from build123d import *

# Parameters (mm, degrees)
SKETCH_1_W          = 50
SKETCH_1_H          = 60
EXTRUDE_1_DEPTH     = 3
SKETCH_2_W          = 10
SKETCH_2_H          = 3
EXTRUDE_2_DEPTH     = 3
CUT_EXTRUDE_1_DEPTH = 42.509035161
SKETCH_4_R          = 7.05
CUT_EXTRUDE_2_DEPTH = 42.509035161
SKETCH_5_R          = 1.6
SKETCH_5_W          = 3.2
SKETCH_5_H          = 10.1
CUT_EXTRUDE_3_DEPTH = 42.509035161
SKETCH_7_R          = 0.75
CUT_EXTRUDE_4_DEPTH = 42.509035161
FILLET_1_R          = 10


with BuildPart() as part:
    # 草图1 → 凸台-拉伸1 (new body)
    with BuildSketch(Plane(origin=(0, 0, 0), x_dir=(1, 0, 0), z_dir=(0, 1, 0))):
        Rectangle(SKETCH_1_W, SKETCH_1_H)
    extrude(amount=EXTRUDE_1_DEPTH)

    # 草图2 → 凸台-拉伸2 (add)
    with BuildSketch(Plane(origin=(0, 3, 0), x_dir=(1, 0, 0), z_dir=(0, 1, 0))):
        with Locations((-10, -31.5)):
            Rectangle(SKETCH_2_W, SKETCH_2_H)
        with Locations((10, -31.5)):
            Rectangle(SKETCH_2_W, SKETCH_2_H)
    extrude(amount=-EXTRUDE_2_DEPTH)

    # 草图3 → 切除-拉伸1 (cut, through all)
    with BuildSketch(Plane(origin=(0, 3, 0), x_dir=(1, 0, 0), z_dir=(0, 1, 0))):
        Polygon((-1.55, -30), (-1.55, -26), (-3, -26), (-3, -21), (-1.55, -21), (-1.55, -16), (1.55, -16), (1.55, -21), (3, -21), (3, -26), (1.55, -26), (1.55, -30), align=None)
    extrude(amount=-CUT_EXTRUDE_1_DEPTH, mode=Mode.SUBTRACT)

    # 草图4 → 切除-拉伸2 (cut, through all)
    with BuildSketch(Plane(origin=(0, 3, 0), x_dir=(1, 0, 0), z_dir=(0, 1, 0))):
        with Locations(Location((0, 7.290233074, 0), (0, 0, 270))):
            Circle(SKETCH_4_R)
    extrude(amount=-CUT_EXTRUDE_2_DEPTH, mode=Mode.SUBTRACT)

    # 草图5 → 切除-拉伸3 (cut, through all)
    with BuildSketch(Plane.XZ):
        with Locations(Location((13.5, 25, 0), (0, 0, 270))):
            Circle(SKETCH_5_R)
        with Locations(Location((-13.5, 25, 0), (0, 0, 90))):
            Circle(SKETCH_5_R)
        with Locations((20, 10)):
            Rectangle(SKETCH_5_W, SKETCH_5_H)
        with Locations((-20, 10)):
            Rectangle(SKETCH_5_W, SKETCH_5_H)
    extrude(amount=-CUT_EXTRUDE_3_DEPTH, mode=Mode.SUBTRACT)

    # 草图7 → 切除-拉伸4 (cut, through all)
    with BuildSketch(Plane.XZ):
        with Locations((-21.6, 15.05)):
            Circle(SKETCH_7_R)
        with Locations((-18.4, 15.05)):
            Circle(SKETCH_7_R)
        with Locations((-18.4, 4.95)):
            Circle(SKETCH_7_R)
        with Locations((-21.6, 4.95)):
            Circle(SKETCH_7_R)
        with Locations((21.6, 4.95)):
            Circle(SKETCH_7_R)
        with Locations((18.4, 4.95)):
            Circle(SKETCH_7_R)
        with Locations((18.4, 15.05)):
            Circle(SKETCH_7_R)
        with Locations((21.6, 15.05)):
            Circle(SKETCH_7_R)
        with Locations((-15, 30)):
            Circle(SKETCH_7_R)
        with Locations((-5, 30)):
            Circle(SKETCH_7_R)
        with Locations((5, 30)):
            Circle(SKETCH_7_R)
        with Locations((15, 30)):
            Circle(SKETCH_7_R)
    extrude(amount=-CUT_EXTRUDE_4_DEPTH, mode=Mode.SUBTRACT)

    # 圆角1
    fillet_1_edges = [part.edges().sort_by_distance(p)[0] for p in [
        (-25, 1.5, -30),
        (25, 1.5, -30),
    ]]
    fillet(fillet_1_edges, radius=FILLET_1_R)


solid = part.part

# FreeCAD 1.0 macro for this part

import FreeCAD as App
import Part
import Sketcher
Q = App.Units.Quantity


def edges_at(feature, points):
    """Names of the edges that pass closest to the given points."""
    edges = feature.Shape.Edges
    near = lambda p: min(range(len(edges)), key=lambda i: edges[i].distToShape(Part.Vertex(*p))[0])
    return sorted({f"Edge{near(p) + 1}" for p in points})


def add_polygon(sketch, points):
    """Adds a closed chain of lines whose ends are joined by coincident constraints."""
    first, n = sketch.GeometryCount, len(points)
    for a, b in zip(points, points[1:] + points[:1]):
        sketch.addGeometry(Part.LineSegment(App.Vector(*a, 0), App.Vector(*b, 0)), False)
    for i in range(n):
        sketch.addConstraint(Sketcher.Constraint("Coincident", first + i, 2, first + (i + 1) % n, 1))

doc = App.newDocument("Part")
params = doc.addObject("Spreadsheet::Sheet", "Params")
for row, (alias, value) in enumerate([
    ("sketch1_width", "50 mm"),
    ("sketch1_height", "60 mm"),
    ("pad1_length", "3 mm"),
    ("sketch2_width", "10 mm"),
    ("sketch2_height", "3 mm"),
    ("pad2_length", "3 mm"),
    ("sketch3_height", "4 mm"),
    ("sketch3_height2", "5 mm"),
    ("sketch3_width", "3.1 mm"),
    ("sketch4_diameter", "14.1 mm"),
    ("sketch5_diameter", "3.2 mm"),
    ("sketch5_width", "3.2 mm"),
    ("sketch5_height", "10.1 mm"),
    ("sketch6_diameter", "1.5 mm"),
    ("fillet_radius", "10 mm"),
], start=1):
    params.set(f"A{row}", alias)
    params.set(f"B{row}", "=" + value)
    params.setAlias(f"B{row}", alias)

body = doc.addObject("PartDesign::Body", "Body")

sketch1 = body.newObject("Sketcher::SketchObject", "Sketch")
sketch1.AttachmentSupport = (doc.getObject("XZ_Plane"), [""])
sketch1.MapMode = "FlatFace"
add_polygon(sketch1, [(-25, -30), (-25, 30), (25, 30), (25, -30)])
sketch1.addConstraint([
    Sketcher.Constraint("Vertical", 0),
    Sketcher.Constraint("Horizontal", 1),
    Sketcher.Constraint("Vertical", 2),
    Sketcher.Constraint("Horizontal", 3),
    Sketcher.Constraint("Symmetric", 0, 2, 2, 2, -1, 1),
    Sketcher.Constraint("DistanceX", 1, 1, 1, 2, Q("50 mm")),
    Sketcher.Constraint("DistanceY", 0, 1, 0, 2, Q("60 mm")),
])
sketch1.setExpression("Constraints[9]", "Params.sketch1_width")
sketch1.setExpression("Constraints[10]", "Params.sketch1_height")
pad1 = body.newObject("PartDesign::Pad", "Pad")
pad1.Profile = sketch1
pad1.setExpression("Length", "Params.pad1_length")
pad1.Reversed = True

sketch2 = body.newObject("Sketcher::SketchObject", "Sketch001")
sketch2.AttachmentSupport = (doc.getObject("XZ_Plane"), [""])
sketch2.MapMode = "FlatFace"
sketch2.AttachmentOffset = App.Placement(App.Vector(0, 0, -3), App.Rotation())
add_polygon(sketch2, [(-15, 30), (-15, 33), (-5, 33), (-5, 30)])
add_polygon(sketch2, [(5, 30), (5, 33), (15, 33), (15, 30)])
sketch2.addConstraint([
    Sketcher.Constraint("Vertical", 0),
    Sketcher.Constraint("Horizontal", 1),
    Sketcher.Constraint("Vertical", 2),
    Sketcher.Constraint("Horizontal", 3),
    Sketcher.Constraint("Vertical", 4),
    Sketcher.Constraint("Horizontal", 5),
    Sketcher.Constraint("Vertical", 6),
    Sketcher.Constraint("Horizontal", 7),
    Sketcher.Constraint("Symmetric", 1, 2, 4, 2, -2),
    Sketcher.Constraint("Symmetric", 3, 2, 6, 2, -2),
    Sketcher.Constraint("DistanceX", 1, 1, 1, 2, Q("10 mm")),
    Sketcher.Constraint("DistanceY", 0, 1, 0, 2, Q("3 mm")),
    Sketcher.Constraint("DistanceX", 0, 2, -1, 1, Q("15 mm")),
    Sketcher.Constraint("DistanceY", -1, 1, 0, 2, Q("33 mm")),
])
sketch2.setExpression("Constraints[18]", "Params.sketch2_width")
sketch2.setExpression("Constraints[19]", "Params.sketch2_height")
pad2 = body.newObject("PartDesign::Pad", "Pad001")
pad2.Profile = sketch2
pad2.setExpression("Length", "Params.pad2_length")

sketch3 = body.newObject("Sketcher::SketchObject", "Sketch002")
sketch3.AttachmentSupport = (doc.getObject("XZ_Plane"), [""])
sketch3.MapMode = "FlatFace"
sketch3.AttachmentOffset = App.Placement(App.Vector(0, 0, -3), App.Rotation())
add_polygon(sketch3, [(-1.55, 26), (-1.55, 30), (1.55, 30), (1.55, 26), (3, 26), (3, 21), (1.55, 21), (1.55, 16), (-1.55, 16), (-1.55, 21), (-3, 21), (-3, 26)])
sketch3.addConstraint([
    Sketcher.Constraint("Vertical", 0),
    Sketcher.Constraint("Horizontal", 1),
    Sketcher.Constraint("Vertical", 2),
    Sketcher.Constraint("Horizontal", 3),
    Sketcher.Constraint("Vertical", 4),
    Sketcher.Constraint("Horizontal", 5),
    Sketcher.Constraint("Vertical", 6),
    Sketcher.Constraint("Horizontal", 7),
    Sketcher.Constraint("Vertical", 8),
    Sketcher.Constraint("Horizontal", 9),
    Sketcher.Constraint("Vertical", 10),
    Sketcher.Constraint("Horizontal", 11),
    Sketcher.Constraint("Symmetric", 5, 2, 8, 2, -2),
    Sketcher.Constraint("Symmetric", 3, 2, 10, 2, -2),
    Sketcher.Constraint("Vertical", 2, 2, 5, 2),
    Sketcher.Constraint("Vertical", 0, 2, 7, 2),
    Sketcher.Constraint("Equal", 4, 6),
    Sketcher.Constraint("DistanceY", 0, 1, 0, 2, Q("4 mm")),
    Sketcher.Constraint("DistanceY", 4, 2, 4, 1, Q("5 mm")),
    Sketcher.Constraint("DistanceX", 1, 1, 1, 2, Q("3.1 mm")),
    Sketcher.Constraint("DistanceY", -1, 1, 0, 2, Q("30 mm")),
    Sketcher.Constraint("DistanceX", -1, 1, 3, 2, Q("3 mm")),
])
sketch3.setExpression("Constraints[29]", "Params.sketch3_height")
sketch3.setExpression("Constraints[30]", "Params.sketch3_height2")
sketch3.setExpression("Constraints[31]", "Params.sketch3_width")
pocket1 = body.newObject("PartDesign::Pocket", "Pocket")
pocket1.Profile = sketch3
pocket1.Type = "ThroughAll"
pocket1.Reversed = True

sketch4 = body.newObject("Sketcher::SketchObject", "Sketch003")
sketch4.AttachmentSupport = (doc.getObject("XZ_Plane"), [""])
sketch4.MapMode = "FlatFace"
sketch4.AttachmentOffset = App.Placement(App.Vector(0, 0, -3), App.Rotation())
sketch4.addGeometry(Part.Circle(App.Vector(0, -7.290233, 0), App.Vector(0, 0, 1), 7.05), False)
sketch4.addConstraint([
    Sketcher.Constraint("PointOnObject", 0, 3, -2),
    Sketcher.Constraint("Diameter", 0, Q("14.1 mm")),
    Sketcher.Constraint("DistanceY", 0, 3, -1, 1, Q("7.290233 mm")),
])
sketch4.setExpression("Constraints[1]", "Params.sketch4_diameter")
pocket2 = body.newObject("PartDesign::Pocket", "Pocket001")
pocket2.Profile = sketch4
pocket2.Type = "ThroughAll"
pocket2.Reversed = True

sketch5 = body.newObject("Sketcher::SketchObject", "Sketch004")
sketch5.AttachmentSupport = (doc.getObject("XZ_Plane"), [""])
sketch5.MapMode = "FlatFace"
sketch5.addGeometry(Part.Circle(App.Vector(13.5, 25, 0), App.Vector(0, 0, 1), 1.6), False)
sketch5.addGeometry(Part.Circle(App.Vector(-13.5, 25, 0), App.Vector(0, 0, 1), 1.6), False)
add_polygon(sketch5, [(18.4, 15.05), (18.4, 4.95), (21.6, 4.95), (21.6, 15.05)])
add_polygon(sketch5, [(-21.6, 15.05), (-21.6, 4.95), (-18.4, 4.95), (-18.4, 15.05)])
sketch5.addConstraint([
    Sketcher.Constraint("Vertical", 2),
    Sketcher.Constraint("Horizontal", 3),
    Sketcher.Constraint("Vertical", 4),
    Sketcher.Constraint("Horizontal", 5),
    Sketcher.Constraint("Vertical", 6),
    Sketcher.Constraint("Horizontal", 7),
    Sketcher.Constraint("Vertical", 8),
    Sketcher.Constraint("Horizontal", 9),
    Sketcher.Constraint("Equal", 0, 1),
    Sketcher.Constraint("Symmetric", 0, 3, 1, 3, -2),
    Sketcher.Constraint("Symmetric", 3, 2, 6, 2, -2),
    Sketcher.Constraint("Symmetric", 5, 2, 8, 2, -2),
    Sketcher.Constraint("Diameter", 0, Q("3.2 mm")),
    Sketcher.Constraint("DistanceX", 3, 1, 3, 2, Q("3.2 mm")),
    Sketcher.Constraint("DistanceY", 2, 2, 2, 1, Q("10.1 mm")),
    Sketcher.Constraint("DistanceY", -1, 1, 0, 3, Q("25 mm")),
    Sketcher.Constraint("DistanceX", 1, 3, 0, 3, Q("27 mm")),
    Sketcher.Constraint("DistanceX", 6, 2, 2, 2, Q("40 mm")),
    Sketcher.Constraint("DistanceY", -1, 1, 2, 2, Q("4.95 mm")),
])
sketch5.setExpression("Constraints[20]", "Params.sketch5_diameter")
sketch5.setExpression("Constraints[21]", "Params.sketch5_width")
sketch5.setExpression("Constraints[22]", "Params.sketch5_height")
pocket3 = body.newObject("PartDesign::Pocket", "Pocket002")
pocket3.Profile = sketch5
pocket3.Type = "ThroughAll"

sketch6 = body.newObject("Sketcher::SketchObject", "Sketch005")
sketch6.AttachmentSupport = (doc.getObject("XZ_Plane"), [""])
sketch6.MapMode = "FlatFace"
sketch6.addGeometry([
    Part.Circle(App.Vector(-21.6, 15.05, 0), App.Vector(0, 0, 1), 0.75),
    Part.Circle(App.Vector(-18.4, 15.05, 0), App.Vector(0, 0, 1), 0.75),
    Part.Circle(App.Vector(-18.4, 4.95, 0), App.Vector(0, 0, 1), 0.75),
    Part.Circle(App.Vector(-21.6, 4.95, 0), App.Vector(0, 0, 1), 0.75),
    Part.Circle(App.Vector(21.6, 4.95, 0), App.Vector(0, 0, 1), 0.75),
    Part.Circle(App.Vector(18.4, 4.95, 0), App.Vector(0, 0, 1), 0.75),
    Part.Circle(App.Vector(18.4, 15.05, 0), App.Vector(0, 0, 1), 0.75),
    Part.Circle(App.Vector(21.6, 15.05, 0), App.Vector(0, 0, 1), 0.75),
    Part.Circle(App.Vector(-15, 30, 0), App.Vector(0, 0, 1), 0.75),
    Part.Circle(App.Vector(-5, 30, 0), App.Vector(0, 0, 1), 0.75),
    Part.Circle(App.Vector(5, 30, 0), App.Vector(0, 0, 1), 0.75),
    Part.Circle(App.Vector(15, 30, 0), App.Vector(0, 0, 1), 0.75),
], False)
sketch6.addConstraint([
    Sketcher.Constraint("Equal", 0, 1),
    Sketcher.Constraint("Equal", 1, 2),
    Sketcher.Constraint("Equal", 2, 3),
    Sketcher.Constraint("Equal", 3, 4),
    Sketcher.Constraint("Equal", 4, 5),
    Sketcher.Constraint("Equal", 5, 6),
    Sketcher.Constraint("Equal", 6, 7),
    Sketcher.Constraint("Equal", 7, 8),
    Sketcher.Constraint("Equal", 8, 9),
    Sketcher.Constraint("Equal", 9, 10),
    Sketcher.Constraint("Equal", 10, 11),
    Sketcher.Constraint("Symmetric", 3, 3, 4, 3, -2),
    Sketcher.Constraint("Symmetric", 2, 3, 5, 3, -2),
    Sketcher.Constraint("Symmetric", 1, 3, 6, 3, -2),
    Sketcher.Constraint("Symmetric", 0, 3, 7, 3, -2),
    Sketcher.Constraint("Symmetric", 9, 3, 10, 3, -2),
    Sketcher.Constraint("Symmetric", 8, 3, 11, 3, -2),
    Sketcher.Constraint("Horizontal", 0, 3, 1, 3),
    Sketcher.Constraint("Horizontal", 2, 3, 3, 3),
    Sketcher.Constraint("Horizontal", 8, 3, 9, 3),
    Sketcher.Constraint("Vertical", 1, 3, 2, 3),
    Sketcher.Constraint("Vertical", 0, 3, 3, 3),
    Sketcher.Constraint("Diameter", 0, Q("1.5 mm")),
    Sketcher.Constraint("DistanceX", 8, 3, -1, 1, Q("15 mm")),
    Sketcher.Constraint("DistanceY", -1, 1, 8, 3, Q("30 mm")),
    Sketcher.Constraint("DistanceX", 9, 3, -1, 1, Q("5 mm")),
    Sketcher.Constraint("DistanceX", 2, 3, 4, 3, Q("40 mm")),
    Sketcher.Constraint("DistanceX", 0, 3, -1, 1, Q("21.6 mm")),
    Sketcher.Constraint("DistanceY", 2, 3, 1, 3, Q("10.1 mm")),
    Sketcher.Constraint("DistanceY", -1, 1, 0, 3, Q("15.05 mm")),
])
sketch6.setExpression("Constraints[22]", "Params.sketch6_diameter")
pocket4 = body.newObject("PartDesign::Pocket", "Pocket003")
pocket4.Profile = sketch6
pocket4.Type = "ThroughAll"
doc.recompute()

fillet = body.newObject("PartDesign::Fillet", "Fillet")
fillet.Base = (pocket4, edges_at(pocket4, [(-25, 1.5, -30), (25, 1.5, -30)]))
fillet.setExpression("Radius", "Params.fillet_radius")

doc.recompute()
